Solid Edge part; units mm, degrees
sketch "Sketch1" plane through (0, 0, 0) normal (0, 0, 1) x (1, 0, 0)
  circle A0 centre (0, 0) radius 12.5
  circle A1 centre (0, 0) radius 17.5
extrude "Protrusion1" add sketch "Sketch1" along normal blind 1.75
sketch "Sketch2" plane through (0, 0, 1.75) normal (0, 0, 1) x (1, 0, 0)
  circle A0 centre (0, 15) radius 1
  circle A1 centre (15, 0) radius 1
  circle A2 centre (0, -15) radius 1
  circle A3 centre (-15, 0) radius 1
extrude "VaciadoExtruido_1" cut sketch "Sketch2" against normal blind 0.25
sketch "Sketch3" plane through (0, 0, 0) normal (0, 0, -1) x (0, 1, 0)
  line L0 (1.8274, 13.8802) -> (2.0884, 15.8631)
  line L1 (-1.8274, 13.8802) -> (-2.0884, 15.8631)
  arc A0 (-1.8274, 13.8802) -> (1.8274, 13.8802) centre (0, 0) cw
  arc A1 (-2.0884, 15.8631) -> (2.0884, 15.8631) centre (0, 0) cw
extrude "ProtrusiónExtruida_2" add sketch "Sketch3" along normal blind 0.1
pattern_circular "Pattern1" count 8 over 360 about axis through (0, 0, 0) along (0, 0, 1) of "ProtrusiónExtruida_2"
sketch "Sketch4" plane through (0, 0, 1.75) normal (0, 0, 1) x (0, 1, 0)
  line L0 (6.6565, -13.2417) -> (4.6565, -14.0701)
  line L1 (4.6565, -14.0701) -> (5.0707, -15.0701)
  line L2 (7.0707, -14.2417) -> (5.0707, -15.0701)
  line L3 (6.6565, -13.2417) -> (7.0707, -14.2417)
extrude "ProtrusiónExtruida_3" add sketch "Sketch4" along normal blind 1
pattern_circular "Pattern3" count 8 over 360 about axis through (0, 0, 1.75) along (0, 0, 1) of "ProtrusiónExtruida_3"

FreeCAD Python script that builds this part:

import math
import FreeCAD as App
import Part
import Sketcher

V = App.Vector
Q = App.Units.Quantity

doc = App.newDocument("Part")
params = doc.addObject("Spreadsheet::Sheet", "Params")
for row, (alias, value) in enumerate([
    ("sketch1_diameter", "35 mm"),
    ("sketch1_diameter2", "25 mm"),
    ("pad1_length", "1.75 mm"),
    ("sketch2_diameter", "2 mm"),
    ("pocket1_length", "0.25 mm"),
    ("sketch3_radius", "14 mm"),
    ("sketch3_radius2", "16 mm"),
    ("pad2_length", "0.1 mm"),
    ("pad3_length", "1 mm"),
], start=1):
    params.set(f"A{row}", alias)
    params.set(f"B{row}", "=" + value)
    params.setAlias(f"B{row}", alias)

body = doc.addObject("PartDesign::Body", "Body")

# Sketch on XY plane
sketch1 = doc.addObject("Sketcher::SketchObject", "Sketch")
body.addObject(sketch1)
sketch1.AttachmentSupport = (doc.XY_Plane, [""])
sketch1.MapMode = "FlatFace"
sketch1.addGeometry(Part.Circle(V(0, 0, 0), V(0, 0, 1), 18), False)
sketch1.addGeometry(Part.Circle(V(0, 0, 0), V(0, 0, 1), 12), False)
sketch1.addConstraint(Sketcher.Constraint("Coincident", 0, 3, -1, 1))
sketch1.addConstraint(Sketcher.Constraint("Coincident", 1, 3, -1, 1))
sketch1.addConstraint(Sketcher.Constraint("Diameter", 0, 35.0))
sketch1.addConstraint(Sketcher.Constraint("Diameter", 1, 25.0))
sketch1.setExpression("Constraints[2]", "Params.sketch1_diameter")
sketch1.setExpression("Constraints[3]", "Params.sketch1_diameter2")
pad1 = doc.addObject("PartDesign::Pad", "Pad")
body.addObject(pad1)
pad1.Profile = sketch1
pad1.setExpression("Length", "Params.pad1_length")

# Sketch on XY plane
sketch2 = doc.addObject("Sketcher::SketchObject", "Sketch001")
body.addObject(sketch2)
sketch2.AttachmentSupport = (doc.XY_Plane, [""])
sketch2.MapMode = "FlatFace"
sketch2.AttachmentOffset = App.Placement(V(0, 0, 1.75), App.Rotation())
sketch2.addGeometry(Part.Circle(V(0, 15, 0), V(0, 0, 1), 1), False)
sketch2.addGeometry(Part.Circle(V(15, 0, 0), V(0, 0, 1), 1), False)
sketch2.addGeometry(Part.Circle(V(0, -15, 0), V(0, 0, 1), 1), False)
sketch2.addGeometry(Part.Circle(V(-15, 0, 0), V(0, 0, 1), 1), False)
sketch2.addConstraint(Sketcher.Constraint("Equal", 0, 1))
sketch2.addConstraint(Sketcher.Constraint("Equal", 1, 2))
sketch2.addConstraint(Sketcher.Constraint("Equal", 2, 3))
sketch2.addConstraint(Sketcher.Constraint("Symmetric", 0, 3, 2, 3, -1, 1))
sketch2.addConstraint(Sketcher.Constraint("Symmetric", 1, 3, 3, 3, -1, 1))
sketch2.addConstraint(Sketcher.Constraint("PointOnObject", 0, 3, -2))
sketch2.addConstraint(Sketcher.Constraint("PointOnObject", 1, 3, -1))
sketch2.addConstraint(Sketcher.Constraint("Diameter", 0, 2.0))
sketch2.addConstraint(Sketcher.Constraint("DistanceY", -1, 1, 0, 3, 15.0))
sketch2.addConstraint(Sketcher.Constraint("DistanceX", -1, 1, 1, 3, 15.0))
sketch2.setExpression("Constraints[7]", "Params.sketch2_diameter")
pocket1 = doc.addObject("PartDesign::Pocket", "Pocket")
body.addObject(pocket1)
pocket1.Profile = sketch2
pocket1.setExpression("Length", "Params.pocket1_length")

# Sketch on XY plane
sketch3 = doc.addObject("Sketcher::SketchObject", "Sketch002")
body.addObject(sketch3)
sketch3.AttachmentSupport = (doc.XY_Plane, [""])
sketch3.MapMode = "FlatFace"
sketch3.addGeometry(Part.ArcOfCircle(Part.Circle(V(0, 0, 0), V(0, 0, 1), 14), math.radians(-7.5), math.radians(7.5)), False)
sketch3.addGeometry(Part.LineSegment(V(13.9, 1.8, 0), V(15.9, 2.1, 0)), False)
sketch3.addGeometry(Part.ArcOfCircle(Part.Circle(V(0, 0, 0), V(0, 0, 1), 16), math.radians(-7.5), math.radians(7.5)), False)
sketch3.addGeometry(Part.LineSegment(V(15.9, -2.1, 0), V(13.9, -1.8, 0)), False)
sketch3.addConstraint(Sketcher.Constraint("Coincident", 0, 2, 1, 1))
sketch3.addConstraint(Sketcher.Constraint("Coincident", 1, 2, 2, 2))
sketch3.addConstraint(Sketcher.Constraint("Coincident", 2, 1, 3, 1))
sketch3.addConstraint(Sketcher.Constraint("Coincident", 3, 2, 0, 1))
sketch3.addConstraint(Sketcher.Constraint("Coincident", 0, 3, -1, 1))
sketch3.addConstraint(Sketcher.Constraint("Coincident", 2, 3, -1, 1))
sketch3.addConstraint(Sketcher.Constraint("Vertical", 1, 2, 2, 1))
sketch3.addConstraint(Sketcher.Constraint("Vertical", 0, 2, 3, 2))
sketch3.addConstraint(Sketcher.Constraint("Radius", 0, 14.0))
sketch3.addConstraint(Sketcher.Constraint("Radius", 2, 16.0))
sketch3.addConstraint(Sketcher.Constraint("DistanceX", -1, 1, 1, 2, 15.863))
sketch3.addConstraint(Sketcher.Constraint("DistanceX", 0, 2, 1, 2, 1.983))
sketch3.setExpression("Constraints[8]", "Params.sketch3_radius")
sketch3.setExpression("Constraints[9]", "Params.sketch3_radius2")
pad2 = doc.addObject("PartDesign::Pad", "Pad001")
body.addObject(pad2)
pad2.Profile = sketch3
pad2.setExpression("Length", "Params.pad2_length")
pad2.Reversed = True
doc.recompute()

polarpattern = doc.addObject("PartDesign::PolarPattern", "PolarPattern")
body.addObject(polarpattern)
polarpattern.Originals = [pad2]
polarpattern.Axis = (doc.Z_Axis, [""])
polarpattern.Angle = 360
polarpattern.Occurrences = 8
body.Tip = polarpattern

# Sketch on XY plane
sketch4 = doc.addObject("Sketcher::SketchObject", "Sketch003")
body.addObject(sketch4)
sketch4.AttachmentSupport = (doc.XY_Plane, [""])
sketch4.MapMode = "FlatFace"
sketch4.AttachmentOffset = App.Placement(V(0, 0, 1.75), App.Rotation())
sketch4.addGeometry(Part.LineSegment(V(14.2, 7.1, 0), V(13.2, 6.7, 0)), False)
sketch4.addGeometry(Part.LineSegment(V(13.2, 6.7, 0), V(14.1, 4.7, 0)), False)
sketch4.addGeometry(Part.LineSegment(V(14.1, 4.7, 0), V(15.1, 5.1, 0)), False)
sketch4.addGeometry(Part.LineSegment(V(15.1, 5.1, 0), V(14.2, 7.1, 0)), False)
sketch4.addConstraint(Sketcher.Constraint("Coincident", 0, 2, 1, 1))
sketch4.addConstraint(Sketcher.Constraint("Coincident", 1, 2, 2, 1))
sketch4.addConstraint(Sketcher.Constraint("Coincident", 2, 2, 3, 1))
sketch4.addConstraint(Sketcher.Constraint("Coincident", 3, 2, 0, 1))
sketch4.addConstraint(Sketcher.Constraint("Perpendicular", 0, 1))
sketch4.addConstraint(Sketcher.Constraint("Perpendicular", 1, 2))
sketch4.addConstraint(Sketcher.Constraint("Perpendicular", 2, 3))
sketch4.addConstraint(Sketcher.Constraint("Angle", 0, Q("-157.5007 deg")))
sketch4.addConstraint(Sketcher.Constraint("DistanceY", 1, 2, 0, 2, 2.0))
sketch4.addConstraint(Sketcher.Constraint("DistanceX", 1, 2, 2, 2, 1.0))
sketch4.addConstraint(Sketcher.Constraint("DistanceX", -1, 1, 1, 2, 14.07))
sketch4.addConstraint(Sketcher.Constraint("DistanceY", -1, 1, 0, 2, 6.6565))
pad3 = doc.addObject("PartDesign::Pad", "Pad002")
body.addObject(pad3)
pad3.Profile = sketch4
pad3.setExpression("Length", "Params.pad3_length")
doc.recompute()

polarpattern2 = doc.addObject("PartDesign::PolarPattern", "PolarPattern001")
body.addObject(polarpattern2)
polarpattern2.Originals = [pad3]
polarpattern2.Axis = (doc.Z_Axis, [""])
polarpattern2.Angle = 360
polarpattern2.Occurrences = 8
body.Tip = polarpattern2

doc.recompute()
